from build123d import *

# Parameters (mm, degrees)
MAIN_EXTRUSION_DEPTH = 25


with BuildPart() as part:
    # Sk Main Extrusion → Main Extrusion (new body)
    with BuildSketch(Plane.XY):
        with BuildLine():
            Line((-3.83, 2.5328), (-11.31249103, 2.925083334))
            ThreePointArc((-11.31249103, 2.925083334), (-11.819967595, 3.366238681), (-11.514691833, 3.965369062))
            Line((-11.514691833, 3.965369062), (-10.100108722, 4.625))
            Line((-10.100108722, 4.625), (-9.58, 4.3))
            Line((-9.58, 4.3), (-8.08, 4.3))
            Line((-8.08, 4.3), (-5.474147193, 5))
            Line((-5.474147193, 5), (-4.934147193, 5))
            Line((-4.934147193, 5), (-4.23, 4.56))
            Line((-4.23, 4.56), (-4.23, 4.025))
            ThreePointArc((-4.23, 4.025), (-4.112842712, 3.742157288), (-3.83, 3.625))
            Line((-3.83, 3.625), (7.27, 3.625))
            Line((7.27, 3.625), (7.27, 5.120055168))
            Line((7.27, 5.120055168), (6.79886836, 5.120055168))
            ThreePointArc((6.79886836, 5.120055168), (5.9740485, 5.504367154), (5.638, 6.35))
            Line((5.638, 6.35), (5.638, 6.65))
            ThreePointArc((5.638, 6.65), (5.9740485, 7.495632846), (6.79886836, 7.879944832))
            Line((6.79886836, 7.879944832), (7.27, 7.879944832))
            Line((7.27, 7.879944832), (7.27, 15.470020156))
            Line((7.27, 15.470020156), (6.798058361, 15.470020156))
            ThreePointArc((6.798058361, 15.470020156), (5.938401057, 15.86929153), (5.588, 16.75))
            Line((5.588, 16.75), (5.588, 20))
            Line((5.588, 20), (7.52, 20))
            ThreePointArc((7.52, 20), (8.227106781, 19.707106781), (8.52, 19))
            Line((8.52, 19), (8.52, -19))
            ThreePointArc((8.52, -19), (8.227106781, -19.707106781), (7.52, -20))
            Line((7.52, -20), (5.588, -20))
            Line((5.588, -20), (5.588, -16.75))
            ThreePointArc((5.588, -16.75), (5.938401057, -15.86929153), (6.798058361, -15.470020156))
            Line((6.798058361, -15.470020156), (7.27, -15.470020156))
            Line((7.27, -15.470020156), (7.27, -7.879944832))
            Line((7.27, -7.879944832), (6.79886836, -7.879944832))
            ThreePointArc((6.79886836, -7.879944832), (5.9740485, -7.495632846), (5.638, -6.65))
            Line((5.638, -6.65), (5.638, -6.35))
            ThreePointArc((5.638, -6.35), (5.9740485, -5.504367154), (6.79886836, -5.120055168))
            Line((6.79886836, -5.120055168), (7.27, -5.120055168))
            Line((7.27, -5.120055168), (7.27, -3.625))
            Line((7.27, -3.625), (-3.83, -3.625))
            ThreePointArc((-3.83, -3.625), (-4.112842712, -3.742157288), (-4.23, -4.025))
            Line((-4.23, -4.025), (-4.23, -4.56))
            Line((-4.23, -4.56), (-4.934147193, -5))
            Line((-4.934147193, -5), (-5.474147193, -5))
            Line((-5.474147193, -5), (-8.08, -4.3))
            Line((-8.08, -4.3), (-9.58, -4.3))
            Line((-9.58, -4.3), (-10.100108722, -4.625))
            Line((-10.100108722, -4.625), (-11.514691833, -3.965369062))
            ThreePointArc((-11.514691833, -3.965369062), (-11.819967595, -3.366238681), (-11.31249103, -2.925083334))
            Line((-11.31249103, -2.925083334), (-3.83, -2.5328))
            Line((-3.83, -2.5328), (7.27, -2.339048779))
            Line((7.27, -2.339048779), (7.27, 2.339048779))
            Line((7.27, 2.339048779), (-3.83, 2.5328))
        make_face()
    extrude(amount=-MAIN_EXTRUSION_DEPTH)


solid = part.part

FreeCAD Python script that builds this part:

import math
import FreeCAD as App
import Part
import Sketcher
from FreeCAD import Vector
Q = App.Units.Quantity

doc = App.newDocument("Part")
params = doc.addObject("Spreadsheet::Sheet", "Params")
for row, (alias, value) in enumerate([
    ("sketch1_radius", "1 mm"),
    ("sketch1_radius2", "0.4 mm"),
    ("sketch1_height", "38 mm"),
    ("sketch1_width", "1.5 mm"),
    ("sketch1_width2", "11.1 mm"),
    ("pad1_length", "25 mm"),
], start=1):
    params.set(f"A{row}", alias)
    params.set(f"B{row}", "=" + value)
    params.setAlias(f"B{row}", alias)

body = doc.addObject("PartDesign::Body", "Body")

sketch1 = body.newObject("Sketcher::SketchObject", "Sketch")
sketch1.AttachmentSupport = (doc.getObject("XY_Plane"), [""])
sketch1.MapMode = "FlatFace"
sketch1.addGeometry(Part.LineSegment(Vector(-11.312491, 2.925083, 0), Vector(-3.83, 2.5328, 0)), False)
sketch1.addGeometry(Part.LineSegment(Vector(-3.83, 2.5328, 0), Vector(7.27, 2.339049, 0)), False)
sketch1.addGeometry(Part.LineSegment(Vector(7.27, 2.339049, 0), Vector(7.27, -2.339049, 0)), False)
sketch1.addGeometry(Part.LineSegment(Vector(7.27, -2.339049, 0), Vector(-3.83, -2.5328, 0)), False)
sketch1.addGeometry(Part.LineSegment(Vector(-3.83, -2.5328, 0), Vector(-11.312491, -2.925083, 0)), False)
sketch1.addGeometry(Part.ArcOfCircle(Part.Circle(Vector(-11.2839, -3.470434, 0), Vector(0, 0, 1), 0.5461), math.radians(93.001089), math.radians(245)), False)
sketch1.addGeometry(Part.LineSegment(Vector(-11.514692, -3.965369, 0), Vector(-10.100109, -4.625, 0)), False)
sketch1.addGeometry(Part.LineSegment(Vector(-10.100109, -4.625, 0), Vector(-9.58, -4.3, 0)), False)
sketch1.addGeometry(Part.LineSegment(Vector(-9.58, -4.3, 0), Vector(-8.08, -4.3, 0)), False)
sketch1.addGeometry(Part.LineSegment(Vector(-8.08, -4.3, 0), Vector(-5.474147, -5, 0)), False)
sketch1.addGeometry(Part.LineSegment(Vector(-5.474147, -5, 0), Vector(-4.934147, -5, 0)), False)
sketch1.addGeometry(Part.LineSegment(Vector(-4.934147, -5, 0), Vector(-4.23, -4.56, 0)), False)
sketch1.addGeometry(Part.LineSegment(Vector(-4.23, -4.56, 0), Vector(-4.23, -4.025, 0)), False)
sketch1.addGeometry(Part.ArcOfCircle(Part.Circle(Vector(-3.83, -4.025, 0), Vector(0, 0, 1), 0.4), math.radians(90), math.radians(180)), False)
sketch1.addGeometry(Part.LineSegment(Vector(-3.83, -3.625, 0), Vector(7.27, -3.625, 0)), False)
sketch1.addGeometry(Part.LineSegment(Vector(7.27, -3.625, 0), Vector(7.27, -5.120055, 0)), False)
sketch1.addGeometry(Part.LineSegment(Vector(7.27, -5.120055, 0), Vector(6.798868, -5.120055, 0)), False)
sketch1.addGeometry(Part.ArcOfCircle(Part.Circle(Vector(6.87, -6.35, 0), Vector(0, 0, 1), 1.232), math.radians(93.309911), math.radians(180)), False)
sketch1.addGeometry(Part.LineSegment(Vector(5.638, -6.35, 0), Vector(5.638, -6.65, 0)), False)
sketch1.addGeometry(Part.ArcOfCircle(Part.Circle(Vector(6.87, -6.65, 0), Vector(0, 0, 1), 1.232), math.radians(180), math.radians(266.690089)), False)
sketch1.addGeometry(Part.LineSegment(Vector(6.798868, -7.879945, 0), Vector(7.27, -7.879945, 0)), False)
sketch1.addGeometry(Part.LineSegment(Vector(7.27, -7.879945, 0), Vector(7.27, -15.47002, 0)), False)
sketch1.addGeometry(Part.LineSegment(Vector(7.27, -15.47002, 0), Vector(6.798058, -15.47002, 0)), False)
sketch1.addGeometry(Part.ArcOfCircle(Part.Circle(Vector(6.87, -16.75, 0), Vector(0, 0, 1), 1.282), math.radians(93.216941), math.radians(180)), False)
sketch1.addGeometry(Part.LineSegment(Vector(5.588, -16.75, 0), Vector(5.588, -20, 0)), False)
sketch1.addGeometry(Part.LineSegment(Vector(5.588, -20, 0), Vector(7.52, -20, 0)), False)
sketch1.addGeometry(Part.ArcOfCircle(Part.Circle(Vector(7.52, -19, 0), Vector(0, 0, 1), 1), math.radians(-90), math.radians(0)), False)
sketch1.addGeometry(Part.LineSegment(Vector(8.52, -19, 0), Vector(8.52, 19, 0)), False)
sketch1.addGeometry(Part.ArcOfCircle(Part.Circle(Vector(7.52, 19, 0), Vector(0, 0, 1), 1), math.radians(0), math.radians(90)), False)
sketch1.addGeometry(Part.LineSegment(Vector(7.52, 20, 0), Vector(5.588, 20, 0)), False)
sketch1.addGeometry(Part.LineSegment(Vector(5.588, 20, 0), Vector(5.588, 16.75, 0)), False)
sketch1.addGeometry(Part.ArcOfCircle(Part.Circle(Vector(6.87, 16.75, 0), Vector(0, 0, 1), 1.282), math.radians(180), math.radians(266.783059)), False)
sketch1.addGeometry(Part.LineSegment(Vector(6.798058, 15.47002, 0), Vector(7.27, 15.47002, 0)), False)
sketch1.addGeometry(Part.LineSegment(Vector(7.27, 15.47002, 0), Vector(7.27, 7.879945, 0)), False)
sketch1.addGeometry(Part.LineSegment(Vector(7.27, 7.879945, 0), Vector(6.798868, 7.879945, 0)), False)
sketch1.addGeometry(Part.ArcOfCircle(Part.Circle(Vector(6.87, 6.65, 0), Vector(0, 0, 1), 1.232), math.radians(93.309911), math.radians(180)), False)
sketch1.addGeometry(Part.LineSegment(Vector(5.638, 6.65, 0), Vector(5.638, 6.35, 0)), False)
sketch1.addGeometry(Part.ArcOfCircle(Part.Circle(Vector(6.87, 6.35, 0), Vector(0, 0, 1), 1.232), math.radians(180), math.radians(266.690089)), False)
sketch1.addGeometry(Part.LineSegment(Vector(6.798868, 5.120055, 0), Vector(7.27, 5.120055, 0)), False)
sketch1.addGeometry(Part.LineSegment(Vector(7.27, 5.120055, 0), Vector(7.27, 3.625, 0)), False)
sketch1.addGeometry(Part.LineSegment(Vector(7.27, 3.625, 0), Vector(-3.83, 3.625, 0)), False)
sketch1.addGeometry(Part.ArcOfCircle(Part.Circle(Vector(-3.83, 4.025, 0), Vector(0, 0, 1), 0.4), math.radians(-180), math.radians(-90)), False)
sketch1.addGeometry(Part.LineSegment(Vector(-4.23, 4.025, 0), Vector(-4.23, 4.56, 0)), False)
sketch1.addGeometry(Part.LineSegment(Vector(-4.23, 4.56, 0), Vector(-4.934147, 5, 0)), False)
sketch1.addGeometry(Part.LineSegment(Vector(-4.934147, 5, 0), Vector(-5.474147, 5, 0)), False)
sketch1.addGeometry(Part.LineSegment(Vector(-5.474147, 5, 0), Vector(-8.08, 4.3, 0)), False)
sketch1.addGeometry(Part.LineSegment(Vector(-8.08, 4.3, 0), Vector(-9.58, 4.3, 0)), False)
sketch1.addGeometry(Part.LineSegment(Vector(-9.58, 4.3, 0), Vector(-10.100109, 4.625, 0)), False)
sketch1.addGeometry(Part.LineSegment(Vector(-10.100109, 4.625, 0), Vector(-11.514692, 3.965369, 0)), False)
sketch1.addGeometry(Part.ArcOfCircle(Part.Circle(Vector(-11.2839, 3.470434, 0), Vector(0, 0, 1), 0.5461), math.radians(115), math.radians(266.998911)), False)
sketch1.addConstraint(Sketcher.Constraint("Coincident", 0, 2, 1, 1))
sketch1.addConstraint(Sketcher.Constraint("Coincident", 1, 2, 2, 1))
sketch1.addConstraint(Sketcher.Constraint("Coincident", 2, 2, 3, 1))
sketch1.addConstraint(Sketcher.Constraint("Coincident", 3, 2, 4, 1))
sketch1.addConstraint(Sketcher.Constraint("Tangent", 4, 2, 5, 1))
sketch1.addConstraint(Sketcher.Constraint("Tangent", 5, 2, 6, 1))
sketch1.addConstraint(Sketcher.Constraint("Coincident", 6, 2, 7, 1))
sketch1.addConstraint(Sketcher.Constraint("Coincident", 7, 2, 8, 1))
sketch1.addConstraint(Sketcher.Constraint("Coincident", 8, 2, 9, 1))
sketch1.addConstraint(Sketcher.Constraint("Coincident", 9, 2, 10, 1))
sketch1.addConstraint(Sketcher.Constraint("Coincident", 10, 2, 11, 1))
sketch1.addConstraint(Sketcher.Constraint("Coincident", 11, 2, 12, 1))
sketch1.addConstraint(Sketcher.Constraint("Tangent", 12, 2, 13, 2))
sketch1.addConstraint(Sketcher.Constraint("Tangent", 13, 1, 14, 1))
sketch1.addConstraint(Sketcher.Constraint("Coincident", 14, 2, 15, 1))
sketch1.addConstraint(Sketcher.Constraint("Coincident", 15, 2, 16, 1))
sketch1.addConstraint(Sketcher.Constraint("Coincident", 16, 2, 17, 1))
sketch1.addConstraint(Sketcher.Constraint("Tangent", 17, 2, 18, 1))
sketch1.addConstraint(Sketcher.Constraint("Tangent", 18, 2, 19, 1))
sketch1.addConstraint(Sketcher.Constraint("Coincident", 19, 2, 20, 1))
sketch1.addConstraint(Sketcher.Constraint("Coincident", 20, 2, 21, 1))
sketch1.addConstraint(Sketcher.Constraint("Coincident", 21, 2, 22, 1))
sketch1.addConstraint(Sketcher.Constraint("Coincident", 22, 2, 23, 1))
sketch1.addConstraint(Sketcher.Constraint("Tangent", 23, 2, 24, 1))
sketch1.addConstraint(Sketcher.Constraint("Coincident", 24, 2, 25, 1))
sketch1.addConstraint(Sketcher.Constraint("Tangent", 25, 2, 26, 1))
sketch1.addConstraint(Sketcher.Constraint("Tangent", 26, 2, 27, 1))
sketch1.addConstraint(Sketcher.Constraint("Tangent", 27, 2, 28, 1))
sketch1.addConstraint(Sketcher.Constraint("Tangent", 28, 2, 29, 1))
sketch1.addConstraint(Sketcher.Constraint("Coincident", 29, 2, 30, 1))
sketch1.addConstraint(Sketcher.Constraint("Tangent", 30, 2, 31, 1))
sketch1.addConstraint(Sketcher.Constraint("Coincident", 31, 2, 32, 1))
sketch1.addConstraint(Sketcher.Constraint("Coincident", 32, 2, 33, 1))
sketch1.addConstraint(Sketcher.Constraint("Coincident", 33, 2, 34, 1))
sketch1.addConstraint(Sketcher.Constraint("Coincident", 34, 2, 35, 1))
sketch1.addConstraint(Sketcher.Constraint("Tangent", 35, 2, 36, 1))
sketch1.addConstraint(Sketcher.Constraint("Tangent", 36, 2, 37, 1))
sketch1.addConstraint(Sketcher.Constraint("Coincident", 37, 2, 38, 1))
sketch1.addConstraint(Sketcher.Constraint("Coincident", 38, 2, 39, 1))
sketch1.addConstraint(Sketcher.Constraint("Coincident", 39, 2, 40, 1))
sketch1.addConstraint(Sketcher.Constraint("Tangent", 40, 2, 41, 2))
sketch1.addConstraint(Sketcher.Constraint("Tangent", 41, 1, 42, 1))
sketch1.addConstraint(Sketcher.Constraint("Coincident", 42, 2, 43, 1))
sketch1.addConstraint(Sketcher.Constraint("Coincident", 43, 2, 44, 1))
sketch1.addConstraint(Sketcher.Constraint("Coincident", 44, 2, 45, 1))
sketch1.addConstraint(Sketcher.Constraint("Coincident", 45, 2, 46, 1))
sketch1.addConstraint(Sketcher.Constraint("Coincident", 46, 2, 47, 1))
sketch1.addConstraint(Sketcher.Constraint("Coincident", 47, 2, 48, 1))
sketch1.addConstraint(Sketcher.Constraint("Tangent", 48, 2, 49, 1))
sketch1.addConstraint(Sketcher.Constraint("Tangent", 49, 2, 0, 1))
sketch1.addConstraint(Sketcher.Constraint("Vertical", 2))
sketch1.addConstraint(Sketcher.Constraint("Horizontal", 8))
sketch1.addConstraint(Sketcher.Constraint("Horizontal", 10))
sketch1.addConstraint(Sketcher.Constraint("Vertical", 12))
sketch1.addConstraint(Sketcher.Constraint("Horizontal", 14))
sketch1.addConstraint(Sketcher.Constraint("Vertical", 15))
sketch1.addConstraint(Sketcher.Constraint("Horizontal", 16))
sketch1.addConstraint(Sketcher.Constraint("Vertical", 18))
sketch1.addConstraint(Sketcher.Constraint("Horizontal", 20))
sketch1.addConstraint(Sketcher.Constraint("Vertical", 21))
sketch1.addConstraint(Sketcher.Constraint("Horizontal", 22))
sketch1.addConstraint(Sketcher.Constraint("Vertical", 24))
sketch1.addConstraint(Sketcher.Constraint("Horizontal", 25))
sketch1.addConstraint(Sketcher.Constraint("Vertical", 27))
sketch1.addConstraint(Sketcher.Constraint("Horizontal", 29))
sketch1.addConstraint(Sketcher.Constraint("Vertical", 30))
sketch1.addConstraint(Sketcher.Constraint("Horizontal", 32))
sketch1.addConstraint(Sketcher.Constraint("Vertical", 33))
sketch1.addConstraint(Sketcher.Constraint("Horizontal", 34))
sketch1.addConstraint(Sketcher.Constraint("Vertical", 36))
sketch1.addConstraint(Sketcher.Constraint("Horizontal", 38))
sketch1.addConstraint(Sketcher.Constraint("Vertical", 39))
sketch1.addConstraint(Sketcher.Constraint("Horizontal", 40))
sketch1.addConstraint(Sketcher.Constraint("Vertical", 42))
sketch1.addConstraint(Sketcher.Constraint("Horizontal", 44))
sketch1.addConstraint(Sketcher.Constraint("Horizontal", 46))
sketch1.addConstraint(Sketcher.Constraint("Equal", 17, 19))
sketch1.addConstraint(Sketcher.Constraint("Equal", 26, 28))
sketch1.addConstraint(Sketcher.Constraint("Equal", 23, 31))
sketch1.addConstraint(Sketcher.Constraint("Equal", 19, 35))
sketch1.addConstraint(Sketcher.Constraint("Equal", 35, 37))
sketch1.addConstraint(Sketcher.Constraint("Equal", 13, 41))
sketch1.addConstraint(Sketcher.Constraint("Equal", 5, 49))
sketch1.addConstraint(Sketcher.Constraint("Symmetric", 23, 3, 31, 3, -1))
sketch1.addConstraint(Sketcher.Constraint("Symmetric", 19, 3, 35, 3, -1))
sketch1.addConstraint(Sketcher.Constraint("Symmetric", 13, 3, 41, 3, -1))
sketch1.addConstraint(Sketcher.Constraint("Symmetric", 5, 3, 49, 3, -1))
sketch1.addConstraint(Sketcher.Constraint("Symmetric", 0, 2, 3, 2, -1))
sketch1.addConstraint(Sketcher.Constraint("Symmetric", 21, 2, 32, 2, -1))
sketch1.addConstraint(Sketcher.Constraint("Symmetric", 16, 2, 37, 2, -1))
sketch1.addConstraint(Sketcher.Constraint("Symmetric", 10, 2, 43, 2, -1))
sketch1.addConstraint(Sketcher.Constraint("Symmetric", 8, 2, 45, 2, -1))
sketch1.addConstraint(Sketcher.Constraint("Symmetric", 6, 2, 47, 2, -1))
sketch1.addConstraint(Sketcher.Constraint("Parallel", 7, 11))
sketch1.addConstraint(Sketcher.Constraint("Parallel", 43, 47))
sketch1.addConstraint(Sketcher.Constraint("Vertical", 19, 3, 23, 3))
sketch1.addConstraint(Sketcher.Constraint("Vertical", 41, 3, 0, 2))
sketch1.addConstraint(Sketcher.Constraint("Vertical", 2, 2, 14, 2))
sketch1.addConstraint(Sketcher.Constraint("Vertical", 16, 2, 19, 2))
sketch1.addConstraint(Sketcher.Constraint("Vertical", 15, 2, 20, 2))
sketch1.addConstraint(Sketcher.Constraint("Vertical", 19, 2, 34, 2))
sketch1.addConstraint(Sketcher.Constraint("Vertical", 33, 2, 38, 2))
sketch1.addConstraint(Sketcher.Constraint("Vertical", 9, 2, 44, 2))
sketch1.addConstraint(Sketcher.Constraint("Vertical", 7, 2, 46, 2))
sketch1.addConstraint(Sketcher.Constraint("Equal", 24, 30))
sketch1.addConstraint(Sketcher.Constraint("Equal", 1, 3))
sketch1.addConstraint(Sketcher.Constraint("Radius", 26, 1.0))
sketch1.addConstraint(Sketcher.Constraint("Radius", 13, 0.4))
sketch1.addConstraint(Sketcher.Constraint("DistanceY", 27, 1, 27, 2, 38.0))
sketch1.addConstraint(Sketcher.Constraint("Angle", 1, Q("-1 deg")))
sketch1.addConstraint(Sketcher.Constraint("Angle", 6, Q("-25 deg")))
sketch1.addConstraint(Sketcher.Constraint("Angle", 7, Q("32 deg")))
sketch1.addConstraint(Sketcher.Constraint("DistanceX", 8, 1, 8, 2, 1.5))
sketch1.addConstraint(Sketcher.Constraint("DistanceX", 14, 1, 14, 2, 11.1))
sketch1.addConstraint(Sketcher.Constraint("DistanceY", 18, 2, 18, 1, 0.3))
sketch1.addConstraint(Sketcher.Constraint("DistanceY", 9, 2, -1, 1, 5.0))
sketch1.addConstraint(Sketcher.Constraint("Radius", 17, 1.232))
sketch1.addConstraint(Sketcher.Constraint("Radius", 23, 1.282))
sketch1.addConstraint(Sketcher.Constraint("DistanceX", 10, 1, 10, 2, 0.54))
sketch1.addConstraint(Sketcher.Constraint("DistanceY", 24, 2, 24, 1, 3.25))
sketch1.addConstraint(Sketcher.Constraint("DistanceY", 7, 2, -1, 1, 4.3))
sketch1.addConstraint(Sketcher.Constraint("Radius", 5, 0.5461))
sketch1.addConstraint(Sketcher.Constraint("DistanceX", 25, 1, 25, 2, 1.932))
sketch1.addConstraint(Sketcher.Constraint("DistanceY", 12, 1, 12, 2, 0.535))
sketch1.addConstraint(Sketcher.Constraint("DistanceX", 13, 3, -1, 1, 3.83))
sketch1.addConstraint(Sketcher.Constraint("DistanceX", -1, 1, 17, 3, 6.87))
sketch1.addConstraint(Sketcher.Constraint("DistanceY", 17, 3, -1, 1, 6.35))
sketch1.addConstraint(Sketcher.Constraint("DistanceX", 7, 2, -1, 1, 9.58))
sketch1.addConstraint(Sketcher.Constraint("DistanceY", 11, 2, -1, 1, 4.56))
sketch1.addConstraint(Sketcher.Constraint("DistanceY", 6, 2, -1, 1, 4.625))
sketch1.addConstraint(Sketcher.Constraint("DistanceX", 16, 2, 16, 1, 0.471132))
sketch1.addConstraint(Sketcher.Constraint("DistanceX", 22, 2, 22, 1, 0.471942))
sketch1.addConstraint(Sketcher.Constraint("DistanceX", 5, 3, -1, 1, 11.2839))
sketch1.addConstraint(Sketcher.Constraint("DistanceY", -1, 1, 0, 2, 2.5328))
sketch1.setExpression("Constraints[106]", "Params.sketch1_radius")
sketch1.setExpression("Constraints[107]", "Params.sketch1_radius2")
sketch1.setExpression("Constraints[108]", "Params.sketch1_height")
sketch1.setExpression("Constraints[112]", "Params.sketch1_width")
sketch1.setExpression("Constraints[113]", "Params.sketch1_width2")
pad1 = body.newObject("PartDesign::Pad", "Pad")
pad1.Profile = sketch1
pad1.setExpression("Length", "Params.pad1_length")
pad1.Reversed = True

doc.recompute()
